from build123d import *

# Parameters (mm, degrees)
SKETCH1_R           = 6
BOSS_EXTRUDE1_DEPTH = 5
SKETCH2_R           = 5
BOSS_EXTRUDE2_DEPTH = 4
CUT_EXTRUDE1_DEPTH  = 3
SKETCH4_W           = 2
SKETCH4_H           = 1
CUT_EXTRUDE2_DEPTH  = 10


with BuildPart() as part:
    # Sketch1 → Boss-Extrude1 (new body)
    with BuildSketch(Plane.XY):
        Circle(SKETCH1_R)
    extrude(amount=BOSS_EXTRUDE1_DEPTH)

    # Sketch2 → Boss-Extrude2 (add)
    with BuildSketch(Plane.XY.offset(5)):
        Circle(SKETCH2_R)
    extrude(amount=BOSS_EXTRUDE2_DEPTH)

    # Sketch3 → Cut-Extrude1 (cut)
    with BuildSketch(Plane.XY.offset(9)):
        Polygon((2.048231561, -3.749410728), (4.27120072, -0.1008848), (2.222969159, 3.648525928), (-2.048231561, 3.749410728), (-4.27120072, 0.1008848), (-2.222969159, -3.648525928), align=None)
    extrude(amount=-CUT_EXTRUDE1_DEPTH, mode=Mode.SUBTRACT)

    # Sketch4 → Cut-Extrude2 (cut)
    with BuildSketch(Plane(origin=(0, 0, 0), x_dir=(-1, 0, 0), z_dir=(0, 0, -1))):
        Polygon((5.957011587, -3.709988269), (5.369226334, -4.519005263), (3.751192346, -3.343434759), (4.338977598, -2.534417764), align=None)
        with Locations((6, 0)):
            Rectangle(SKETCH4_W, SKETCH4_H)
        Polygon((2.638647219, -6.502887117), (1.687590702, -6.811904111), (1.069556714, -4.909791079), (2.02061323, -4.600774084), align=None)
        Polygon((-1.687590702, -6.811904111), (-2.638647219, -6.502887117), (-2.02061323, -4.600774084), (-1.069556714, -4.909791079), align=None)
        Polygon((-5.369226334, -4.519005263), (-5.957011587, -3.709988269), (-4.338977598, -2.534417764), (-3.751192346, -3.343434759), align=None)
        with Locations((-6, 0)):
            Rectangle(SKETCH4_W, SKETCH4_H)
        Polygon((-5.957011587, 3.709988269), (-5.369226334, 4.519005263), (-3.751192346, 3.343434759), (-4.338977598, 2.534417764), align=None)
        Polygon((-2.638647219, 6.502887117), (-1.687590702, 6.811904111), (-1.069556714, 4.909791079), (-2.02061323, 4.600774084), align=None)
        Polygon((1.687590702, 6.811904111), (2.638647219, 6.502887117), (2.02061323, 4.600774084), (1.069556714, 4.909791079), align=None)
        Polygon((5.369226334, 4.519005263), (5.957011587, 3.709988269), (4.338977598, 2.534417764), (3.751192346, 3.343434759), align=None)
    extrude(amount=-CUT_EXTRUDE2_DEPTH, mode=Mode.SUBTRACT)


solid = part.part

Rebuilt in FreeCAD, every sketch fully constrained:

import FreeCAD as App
import Part
import Sketcher

V = App.Vector
Q = App.Units.Quantity


def add_polygon(sketch, points):
    """Adds a closed chain of lines whose ends are joined by coincident constraints."""
    first, n = sketch.GeometryCount, len(points)
    for a, b in zip(points, points[1:] + points[:1]):
        sketch.addGeometry(Part.LineSegment(App.Vector(*a, 0), App.Vector(*b, 0)), False)
    for i in range(n):
        sketch.addConstraint(Sketcher.Constraint("Coincident", first + i, 2, first + (i + 1) % n, 1))

doc = App.newDocument("Part")
body = doc.addObject("PartDesign::Body", "Body")

# Sketch on XY plane
sketch1 = body.newObject("Sketcher::SketchObject", "Sketch")
sketch1.AttachmentSupport = (doc.getObject("XY_Plane"), [""])
sketch1.MapMode = "FlatFace"
sketch1.addGeometry(Part.Circle(V(0, 0, 0), V(0, 0, 1), 6), False)
sketch1.addConstraint(Sketcher.Constraint("Coincident", 0, 3, -1, 1))
sketch1.addConstraint(Sketcher.Constraint("Diameter", 0, Q("12 mm")))
pad1 = body.newObject("PartDesign::Pad", "Pad")
pad1.Profile = sketch1
pad1.Length = 5

# Sketch on XY plane
sketch2 = body.newObject("Sketcher::SketchObject", "Sketch001")
sketch2.AttachmentSupport = (doc.getObject("XY_Plane"), [""])
sketch2.MapMode = "FlatFace"
sketch2.AttachmentOffset = App.Placement(V(0, 0, 5), App.Rotation())
sketch2.addGeometry(Part.Circle(V(0, 0, 0), V(0, 0, 1), 5), False)
sketch2.addConstraint(Sketcher.Constraint("Coincident", 0, 3, -1, 1))
sketch2.addConstraint(Sketcher.Constraint("Diameter", 0, Q("10 mm")))
pad2 = body.newObject("PartDesign::Pad", "Pad001")
pad2.Profile = sketch2
pad2.Length = 4

# Sketch on XY plane
sketch3 = body.newObject("Sketcher::SketchObject", "Sketch002")
sketch3.AttachmentSupport = (doc.getObject("XY_Plane"), [""])
sketch3.MapMode = "FlatFace"
sketch3.AttachmentOffset = App.Placement(V(0, 0, 9), App.Rotation())
add_polygon(sketch3, [(2, -3.7), (4.3, -0.1), (2.2, 3.6), (-2, 3.7), (-4.3, 0.1), (-2.2, -3.6)])  # lines 0-5
sketch3.addConstraint(Sketcher.Constraint("Symmetric", 0, 2, 3, 2, -1, 1))
sketch3.addConstraint(Sketcher.Constraint("Symmetric", 1, 2, 4, 2, -1, 1))
sketch3.addConstraint(Sketcher.Constraint("Symmetric", 2, 2, 5, 2, -1, 1))
sketch3.addConstraint(Sketcher.Constraint("Equal", 0, 1))
sketch3.addConstraint(Sketcher.Constraint("Equal", 1, 2))
sketch3.addConstraint(Sketcher.Constraint("DistanceX", -1, 1, 0, 2, Q("4.271201 mm")))
sketch3.addConstraint(Sketcher.Constraint("DistanceX", 2, 2, 1, 2, Q("4.271201 mm")))
sketch3.addConstraint(Sketcher.Constraint("Distance", 0, Q("4.272392 mm")))
sketch3.addConstraint(Sketcher.Constraint("DistanceX", -1, 1, 1, 2, Q("2.222969 mm")))
pocket1 = body.newObject("PartDesign::Pocket", "Pocket")
pocket1.Profile = sketch3
pocket1.Length = 3

# Sketch on XY plane
sketch4 = body.newObject("Sketcher::SketchObject", "Sketch003")
sketch4.AttachmentSupport = (doc.getObject("XY_Plane"), [""])
sketch4.MapMode = "FlatFace"
add_polygon(sketch4, [(-5.4, -4.5), (-6, -3.7), (-4.3, -2.5), (-3.8, -3.3)])  # lines 0-3
add_polygon(sketch4, [(-5, 0.5), (-5, -0.5), (-7, -0.5), (-7, 0.5)])  # lines 4-7
add_polygon(sketch4, [(-1.7, -6.8), (-2.6, -6.5), (-2, -4.6), (-1.1, -4.9)])  # lines 8-11
add_polygon(sketch4, [(2.6, -6.5), (1.7, -6.8), (1.1, -4.9), (2, -4.6)])  # lines 12-15
add_polygon(sketch4, [(6, -3.7), (5.4, -4.5), (3.8, -3.3), (4.3, -2.5)])  # lines 16-19
add_polygon(sketch4, [(7, 0.5), (7, -0.5), (5, -0.5), (5, 0.5)])  # lines 20-23
add_polygon(sketch4, [(5.4, 4.5), (6, 3.7), (4.3, 2.5), (3.8, 3.3)])  # lines 24-27
add_polygon(sketch4, [(1.7, 6.8), (2.6, 6.5), (2, 4.6), (1.1, 4.9)])  # lines 28-31
add_polygon(sketch4, [(-2.6, 6.5), (-1.7, 6.8), (-1.1, 4.9), (-2, 4.6)])  # lines 32-35
add_polygon(sketch4, [(-6, 3.7), (-5.4, 4.5), (-3.8, 3.3), (-4.3, 2.5)])  # lines 36-39
sketch4.addConstraint(Sketcher.Constraint("Vertical", 4))
sketch4.addConstraint(Sketcher.Constraint("Horizontal", 5))
sketch4.addConstraint(Sketcher.Constraint("Vertical", 6))
sketch4.addConstraint(Sketcher.Constraint("Horizontal", 7))
sketch4.addConstraint(Sketcher.Constraint("Vertical", 20))
sketch4.addConstraint(Sketcher.Constraint("Horizontal", 21))
sketch4.addConstraint(Sketcher.Constraint("Vertical", 22))
sketch4.addConstraint(Sketcher.Constraint("Horizontal", 23))
sketch4.addConstraint(Sketcher.Constraint("Symmetric", 6, 2, 20, 2, -1, 1))
sketch4.addConstraint(Sketcher.Constraint("Symmetric", 4, 2, 22, 2, -1, 1))
sketch4.addConstraint(Sketcher.Constraint("Symmetric", 0, 2, 24, 2, -1, 1))
sketch4.addConstraint(Sketcher.Constraint("Symmetric", 1, 2, 25, 2, -1, 1))
sketch4.addConstraint(Sketcher.Constraint("Symmetric", 2, 2, 26, 2, -1, 1))
sketch4.addConstraint(Sketcher.Constraint("Symmetric", 3, 2, 27, 2, -1, 1))
sketch4.addConstraint(Sketcher.Constraint("Symmetric", 8, 2, 28, 2, -1, 1))
sketch4.addConstraint(Sketcher.Constraint("Symmetric", 9, 2, 29, 2, -1, 1))
sketch4.addConstraint(Sketcher.Constraint("Symmetric", 10, 2, 30, 2, -1, 1))
sketch4.addConstraint(Sketcher.Constraint("Symmetric", 11, 2, 31, 2, -1, 1))
sketch4.addConstraint(Sketcher.Constraint("Symmetric", 12, 2, 32, 2, -1, 1))
sketch4.addConstraint(Sketcher.Constraint("Symmetric", 13, 2, 33, 2, -1, 1))
sketch4.addConstraint(Sketcher.Constraint("Symmetric", 14, 2, 34, 2, -1, 1))
sketch4.addConstraint(Sketcher.Constraint("Symmetric", 15, 2, 35, 2, -1, 1))
sketch4.addConstraint(Sketcher.Constraint("Symmetric", 16, 2, 36, 2, -1, 1))
sketch4.addConstraint(Sketcher.Constraint("Symmetric", 17, 2, 37, 2, -1, 1))
sketch4.addConstraint(Sketcher.Constraint("Symmetric", 18, 2, 38, 2, -1, 1))
sketch4.addConstraint(Sketcher.Constraint("Symmetric", 19, 2, 39, 2, -1, 1))
sketch4.addConstraint(Sketcher.Constraint("Symmetric", 11, 2, 12, 2, -2))
sketch4.addConstraint(Sketcher.Constraint("Symmetric", 10, 2, 13, 2, -2))
sketch4.addConstraint(Sketcher.Constraint("Symmetric", 9, 2, 14, 2, -2))
sketch4.addConstraint(Sketcher.Constraint("Symmetric", 8, 2, 15, 2, -2))
sketch4.addConstraint(Sketcher.Constraint("Symmetric", 3, 2, 16, 2, -2))
sketch4.addConstraint(Sketcher.Constraint("Symmetric", 2, 2, 17, 2, -2))
sketch4.addConstraint(Sketcher.Constraint("Symmetric", 1, 2, 18, 2, -2))
sketch4.addConstraint(Sketcher.Constraint("Symmetric", 0, 2, 19, 2, -2))
sketch4.addConstraint(Sketcher.Constraint("Perpendicular", 0, 1))
sketch4.addConstraint(Sketcher.Constraint("Perpendicular", 1, 2))
sketch4.addConstraint(Sketcher.Constraint("Perpendicular", 2, 3))
sketch4.addConstraint(Sketcher.Constraint("Perpendicular", 8, 9))
sketch4.addConstraint(Sketcher.Constraint("Perpendicular", 9, 10))
sketch4.addConstraint(Sketcher.Constraint("Perpendicular", 10, 11))
sketch4.addConstraint(Sketcher.Constraint("Horizontal", 5, 2, 20, 2))
sketch4.addConstraint(Sketcher.Constraint("Equal", 2, 8))
sketch4.addConstraint(Sketcher.Constraint("Equal", 3, 9))
sketch4.addConstraint(Sketcher.Constraint("DistanceX", 5, 2, 5, 1, Q("2 mm")))
sketch4.addConstraint(Sketcher.Constraint("DistanceY", 4, 2, 4, 1, Q("1 mm")))
sketch4.addConstraint(Sketcher.Constraint("Angle", 0, Q("126 deg")))
sketch4.addConstraint(Sketcher.Constraint("Angle", 8, Q("162 deg")))
sketch4.addConstraint(Sketcher.Constraint("Distance", 0, Q("1 mm")))
sketch4.addConstraint(Sketcher.Constraint("Distance", 1, Q("2 mm")))
sketch4.addConstraint(Sketcher.Constraint("DistanceX", 4, 2, -1, 1, Q("5 mm")))
sketch4.addConstraint(Sketcher.Constraint("DistanceY", 8, 2, 0, 2, Q("2.792899 mm")))
sketch4.addConstraint(Sketcher.Constraint("DistanceX", 0, 2, 9, 2, Q("3.936398 mm")))
sketch4.addConstraint(Sketcher.Constraint("DistanceX", 0, 2, -1, 1, Q("5.957012 mm")))
sketch4.addConstraint(Sketcher.Constraint("DistanceY", 0, 2, -1, 1, Q("3.709988 mm")))
pocket2 = body.newObject("PartDesign::Pocket", "Pocket001")
pocket2.Profile = sketch4
pocket2.Length = 10
pocket2.Reversed = True

doc.recompute()
